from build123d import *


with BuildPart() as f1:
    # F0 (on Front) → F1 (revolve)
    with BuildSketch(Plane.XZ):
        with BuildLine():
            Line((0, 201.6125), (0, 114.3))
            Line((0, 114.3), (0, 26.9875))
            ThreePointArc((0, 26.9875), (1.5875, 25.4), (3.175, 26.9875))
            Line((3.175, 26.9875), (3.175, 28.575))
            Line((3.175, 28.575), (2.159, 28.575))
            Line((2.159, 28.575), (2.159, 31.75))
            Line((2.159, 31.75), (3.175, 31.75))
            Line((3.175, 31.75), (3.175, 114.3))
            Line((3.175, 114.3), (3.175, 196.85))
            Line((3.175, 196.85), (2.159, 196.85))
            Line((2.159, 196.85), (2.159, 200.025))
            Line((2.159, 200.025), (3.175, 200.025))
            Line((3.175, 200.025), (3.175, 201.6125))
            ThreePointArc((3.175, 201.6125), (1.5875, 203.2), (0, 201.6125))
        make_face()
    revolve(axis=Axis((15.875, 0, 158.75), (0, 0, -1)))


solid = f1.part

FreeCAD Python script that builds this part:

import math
import FreeCAD as App
import Part
import Sketcher
Q = App.Units.Quantity

doc = App.newDocument("Part")
body = doc.addObject("PartDesign::Body", "Body")

sketch1 = doc.addObject("Sketcher::SketchObject", "Sketch")
body.addObject(sketch1)
sketch1.AttachmentSupport = (doc.XZ_Plane, [""])
sketch1.MapMode = "FlatFace"
sketch1.addGeometry(Part.LineSegment(App.Vector(0, 201.6, 0), App.Vector(0, 27, 0)), False)
sketch1.addGeometry(Part.ArcOfCircle(Part.Circle(App.Vector(1.6, 27, 0), App.Vector(0, 0, 1), 1.6), math.radians(180), math.radians(360)), False)
sketch1.addGeometry(Part.LineSegment(App.Vector(3.2, 27, 0), App.Vector(3.2, 28.6, 0)), False)
sketch1.addGeometry(Part.LineSegment(App.Vector(3.2, 28.6, 0), App.Vector(2.2, 28.6, 0)), False)
sketch1.addGeometry(Part.LineSegment(App.Vector(2.2, 28.6, 0), App.Vector(2.2, 31.8, 0)), False)
sketch1.addGeometry(Part.LineSegment(App.Vector(2.2, 31.8, 0), App.Vector(3.2, 31.8, 0)), False)
sketch1.addGeometry(Part.LineSegment(App.Vector(3.2, 31.8, 0), App.Vector(3.2, 196.8, 0)), False)
sketch1.addGeometry(Part.LineSegment(App.Vector(3.2, 196.8, 0), App.Vector(2.2, 196.8, 0)), False)
sketch1.addGeometry(Part.LineSegment(App.Vector(2.2, 196.8, 0), App.Vector(2.2, 200, 0)), False)
sketch1.addGeometry(Part.LineSegment(App.Vector(2.2, 200, 0), App.Vector(3.2, 200, 0)), False)
sketch1.addGeometry(Part.LineSegment(App.Vector(3.2, 200, 0), App.Vector(3.2, 201.6, 0)), False)
sketch1.addGeometry(Part.ArcOfCircle(Part.Circle(App.Vector(1.6, 201.6, 0), App.Vector(0, 0, 1), 1.6), math.radians(0), math.radians(180)), False)
sketch1.addGeometry(Part.LineSegment(App.Vector(15.9, 201.6, 0), App.Vector(15.9, 27, 0)), True)
sketch1.addConstraint(Sketcher.Constraint("Tangent", 0, 2, 1, 1))
sketch1.addConstraint(Sketcher.Constraint("Tangent", 1, 2, 2, 1))
sketch1.addConstraint(Sketcher.Constraint("Coincident", 2, 2, 3, 1))
sketch1.addConstraint(Sketcher.Constraint("Coincident", 3, 2, 4, 1))
sketch1.addConstraint(Sketcher.Constraint("Coincident", 4, 2, 5, 1))
sketch1.addConstraint(Sketcher.Constraint("Coincident", 5, 2, 6, 1))
sketch1.addConstraint(Sketcher.Constraint("Coincident", 6, 2, 7, 1))
sketch1.addConstraint(Sketcher.Constraint("Coincident", 7, 2, 8, 1))
sketch1.addConstraint(Sketcher.Constraint("Coincident", 8, 2, 9, 1))
sketch1.addConstraint(Sketcher.Constraint("Coincident", 9, 2, 10, 1))
sketch1.addConstraint(Sketcher.Constraint("Tangent", 10, 2, 11, 1))
sketch1.addConstraint(Sketcher.Constraint("Tangent", 11, 2, 0, 1))
sketch1.addConstraint(Sketcher.Constraint("Vertical", 0))
sketch1.addConstraint(Sketcher.Constraint("Vertical", 2))
sketch1.addConstraint(Sketcher.Constraint("Horizontal", 3))
sketch1.addConstraint(Sketcher.Constraint("Vertical", 4))
sketch1.addConstraint(Sketcher.Constraint("Horizontal", 5))
sketch1.addConstraint(Sketcher.Constraint("Vertical", 6))
sketch1.addConstraint(Sketcher.Constraint("Horizontal", 7))
sketch1.addConstraint(Sketcher.Constraint("Vertical", 8))
sketch1.addConstraint(Sketcher.Constraint("Horizontal", 9))
sketch1.addConstraint(Sketcher.Constraint("Vertical", 10))
sketch1.addConstraint(Sketcher.Constraint("Vertical", 12))
sketch1.addConstraint(Sketcher.Constraint("Equal", 1, 11))
sketch1.addConstraint(Sketcher.Constraint("PointOnObject", 0, 2, -2))
sketch1.addConstraint(Sketcher.Constraint("Horizontal", 11, 2, 12, 1))
sketch1.addConstraint(Sketcher.Constraint("Horizontal", 1, 2, 12, 2))
sketch1.addConstraint(Sketcher.Constraint("Vertical", 2, 2, 5, 2))
sketch1.addConstraint(Sketcher.Constraint("Vertical", 4, 2, 7, 2))
sketch1.addConstraint(Sketcher.Constraint("Equal", 4, 8))
sketch1.addConstraint(Sketcher.Constraint("Equal", 2, 10))
sketch1.addConstraint(Sketcher.Constraint("DistanceY", 6, 1, 6, 2, Q("6.5 in")))
sketch1.addConstraint(Sketcher.Constraint("Radius", 1, Q("0.0625 in")))
sketch1.addConstraint(Sketcher.Constraint("DistanceX", 3, 2, 3, 1, Q("0.04 in")))
sketch1.addConstraint(Sketcher.Constraint("DistanceX", 10, 2, 12, 1, Q("0.5 in")))
sketch1.addConstraint(Sketcher.Constraint("DistanceY", 0, 2, 0, 1, Q("6.875 in")))
sketch1.addConstraint(Sketcher.Constraint("DistanceY", 2, 1, 2, 2, Q("0.0625 in")))
sketch1.addConstraint(Sketcher.Constraint("DistanceY", -1, 1, 4, 2, Q("1.25 in")))
revolution = doc.addObject("PartDesign::Revolution", "Revolution")
body.addObject(revolution)
revolution.Profile = sketch1
revolution.ReferenceAxis = (sketch1, ["Axis0"])
revolution.Angle = 360

doc.recompute()
